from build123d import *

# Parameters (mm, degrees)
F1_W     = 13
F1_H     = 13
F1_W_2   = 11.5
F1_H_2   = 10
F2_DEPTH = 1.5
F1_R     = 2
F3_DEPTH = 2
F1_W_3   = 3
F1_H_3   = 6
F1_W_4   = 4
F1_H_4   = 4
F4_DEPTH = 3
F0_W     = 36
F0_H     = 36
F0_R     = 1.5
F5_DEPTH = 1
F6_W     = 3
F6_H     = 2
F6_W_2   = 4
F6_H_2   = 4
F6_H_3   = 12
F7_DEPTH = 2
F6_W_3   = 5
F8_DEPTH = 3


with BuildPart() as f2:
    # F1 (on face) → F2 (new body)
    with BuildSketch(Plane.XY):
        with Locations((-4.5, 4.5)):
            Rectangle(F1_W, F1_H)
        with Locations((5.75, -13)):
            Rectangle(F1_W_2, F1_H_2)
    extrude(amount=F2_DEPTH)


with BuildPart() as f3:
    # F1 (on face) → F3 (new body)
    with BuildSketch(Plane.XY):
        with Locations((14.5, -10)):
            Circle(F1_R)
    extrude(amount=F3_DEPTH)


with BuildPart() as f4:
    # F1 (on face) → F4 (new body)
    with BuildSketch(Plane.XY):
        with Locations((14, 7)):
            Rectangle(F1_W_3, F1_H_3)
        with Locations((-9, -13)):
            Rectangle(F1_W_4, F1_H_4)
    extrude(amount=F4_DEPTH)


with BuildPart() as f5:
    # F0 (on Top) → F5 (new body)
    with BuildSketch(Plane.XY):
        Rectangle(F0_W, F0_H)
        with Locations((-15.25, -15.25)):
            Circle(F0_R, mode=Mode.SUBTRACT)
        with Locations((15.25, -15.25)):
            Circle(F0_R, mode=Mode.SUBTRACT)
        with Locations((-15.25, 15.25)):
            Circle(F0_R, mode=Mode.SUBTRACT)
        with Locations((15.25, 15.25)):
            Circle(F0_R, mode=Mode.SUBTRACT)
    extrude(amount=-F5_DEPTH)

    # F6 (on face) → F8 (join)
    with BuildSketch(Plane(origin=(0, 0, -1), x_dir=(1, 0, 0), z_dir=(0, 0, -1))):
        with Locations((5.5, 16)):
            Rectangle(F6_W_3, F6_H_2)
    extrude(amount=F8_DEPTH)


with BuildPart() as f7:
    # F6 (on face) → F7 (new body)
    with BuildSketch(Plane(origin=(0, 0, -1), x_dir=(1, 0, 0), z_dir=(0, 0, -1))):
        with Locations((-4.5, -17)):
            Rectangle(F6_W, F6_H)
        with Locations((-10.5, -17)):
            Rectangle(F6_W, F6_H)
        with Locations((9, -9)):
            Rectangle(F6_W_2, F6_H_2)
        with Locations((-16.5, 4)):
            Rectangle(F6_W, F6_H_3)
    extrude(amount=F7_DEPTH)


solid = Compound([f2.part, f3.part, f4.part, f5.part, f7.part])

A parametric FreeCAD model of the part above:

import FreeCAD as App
import Part
import Sketcher

doc = App.newDocument("Part")
body = doc.addObject("PartDesign::Body", "Body")
body.AllowCompound = True

# Sketch on XY plane
sketch1 = doc.addObject("Sketcher::SketchObject", "Sketch")
body.addObject(sketch1)
sketch1.AttachmentSupport = (doc.XY_Plane, [""])
sketch1.MapMode = "FlatFace"
sketch1.addGeometry([
    Part.LineSegment(App.Vector(-11, 11, 0), App.Vector(-11, -2, 0)),  # 0
    Part.LineSegment(App.Vector(-11, -2, 0), App.Vector(2, -2, 0)),  # 1
    Part.LineSegment(App.Vector(2, -2, 0), App.Vector(2, 11, 0)),  # 2
    Part.LineSegment(App.Vector(2, 11, 0), App.Vector(-11, 11, 0)),  # 3
    Part.LineSegment(App.Vector(0, -8, 0), App.Vector(0, -18, 0)),  # 4
    Part.LineSegment(App.Vector(0, -18, 0), App.Vector(11.5, -18, 0)),  # 5
    Part.LineSegment(App.Vector(11.5, -18, 0), App.Vector(11.5, -8, 0)),  # 6
    Part.LineSegment(App.Vector(11.5, -8, 0), App.Vector(0, -8, 0)),  # 7
], False)
sketch1.addConstraint([
    Sketcher.Constraint("Coincident", 0, 2, 1, 1),
    Sketcher.Constraint("Coincident", 1, 2, 2, 1),
    Sketcher.Constraint("Coincident", 2, 2, 3, 1),
    Sketcher.Constraint("Coincident", 3, 2, 0, 1),
    Sketcher.Constraint("Coincident", 4, 2, 5, 1),
    Sketcher.Constraint("Coincident", 5, 2, 6, 1),
    Sketcher.Constraint("Coincident", 6, 2, 7, 1),
    Sketcher.Constraint("Coincident", 7, 2, 4, 1),
    Sketcher.Constraint("Vertical", 0),
    Sketcher.Constraint("Horizontal", 1),
    Sketcher.Constraint("Vertical", 2),
    Sketcher.Constraint("Horizontal", 3),
    Sketcher.Constraint("Vertical", 4),
    Sketcher.Constraint("Horizontal", 5),
    Sketcher.Constraint("Vertical", 6),
    Sketcher.Constraint("Horizontal", 7),
    Sketcher.Constraint("PointOnObject", 4, 2, -2),
    Sketcher.Constraint("Equal", 3, 0),
    Sketcher.Constraint("DistanceX", 1, 1, 1, 2, 13.0),
    Sketcher.Constraint("DistanceY", 4, 2, 4, 1, 10.0),
    Sketcher.Constraint("DistanceX", 5, 1, 5, 2, 11.5),
    Sketcher.Constraint("DistanceX", 0, 2, -1, 1, 11.0),
    Sketcher.Constraint("DistanceY", 0, 2, -1, 1, 2.0),
    Sketcher.Constraint("DistanceY", 4, 2, -1, 1, 18.0),
])
pad1 = doc.addObject("PartDesign::Pad", "Pad")
body.addObject(pad1)
pad1.Profile = sketch1
pad1.Length = 1.5
body2 = doc.addObject("PartDesign::Body", "Body001")

# Sketch on XY plane
sketch2 = doc.addObject("Sketcher::SketchObject", "Sketch001")
body2.addObject(sketch2)
sketch2.AttachmentSupport = (doc.getObject("XY_Plane001"), [""])
sketch2.MapMode = "FlatFace"
sketch2.addGeometry(Part.Circle(App.Vector(14.5, -10, 0), App.Vector(0, 0, 1), 2), False)
sketch2.addConstraint([
    Sketcher.Constraint("Diameter", 0, 4.0),
    Sketcher.Constraint("DistanceY", 0, 3, -1, 1, 10.0),
    Sketcher.Constraint("DistanceX", -1, 1, 0, 3, 14.5),
])
pad2 = doc.addObject("PartDesign::Pad", "Pad001")
body2.addObject(pad2)
pad2.Profile = sketch2
pad2.Length = 2
body3 = doc.addObject("PartDesign::Body", "Body002")
body3.AllowCompound = True

# Sketch on XY plane
sketch3 = doc.addObject("Sketcher::SketchObject", "Sketch002")
body3.addObject(sketch3)
sketch3.AttachmentSupport = (doc.getObject("XY_Plane002"), [""])
sketch3.MapMode = "FlatFace"
sketch3.addGeometry([
    Part.LineSegment(App.Vector(12.5, 10, 0), App.Vector(12.5, 4, 0)),  # 0
    Part.LineSegment(App.Vector(12.5, 4, 0), App.Vector(15.5, 4, 0)),  # 1
    Part.LineSegment(App.Vector(15.5, 4, 0), App.Vector(15.5, 10, 0)),  # 2
    Part.LineSegment(App.Vector(15.5, 10, 0), App.Vector(12.5, 10, 0)),  # 3
    Part.LineSegment(App.Vector(-11, -11, 0), App.Vector(-11, -15, 0)),  # 4
    Part.LineSegment(App.Vector(-11, -15, 0), App.Vector(-7, -15, 0)),  # 5
    Part.LineSegment(App.Vector(-7, -15, 0), App.Vector(-7, -11, 0)),  # 6
    Part.LineSegment(App.Vector(-7, -11, 0), App.Vector(-11, -11, 0)),  # 7
], False)
sketch3.addConstraint([
    Sketcher.Constraint("Coincident", 0, 2, 1, 1),
    Sketcher.Constraint("Coincident", 1, 2, 2, 1),
    Sketcher.Constraint("Coincident", 2, 2, 3, 1),
    Sketcher.Constraint("Coincident", 3, 2, 0, 1),
    Sketcher.Constraint("Coincident", 4, 2, 5, 1),
    Sketcher.Constraint("Coincident", 5, 2, 6, 1),
    Sketcher.Constraint("Coincident", 6, 2, 7, 1),
    Sketcher.Constraint("Coincident", 7, 2, 4, 1),
    Sketcher.Constraint("Vertical", 0),
    Sketcher.Constraint("Horizontal", 1),
    Sketcher.Constraint("Vertical", 2),
    Sketcher.Constraint("Horizontal", 3),
    Sketcher.Constraint("Vertical", 4),
    Sketcher.Constraint("Horizontal", 5),
    Sketcher.Constraint("Vertical", 6),
    Sketcher.Constraint("Horizontal", 7),
    Sketcher.Constraint("Equal", 7, 4),
    Sketcher.Constraint("DistanceX", 1, 1, 1, 2, 3.0),
    Sketcher.Constraint("DistanceX", 5, 1, 5, 2, 4.0),
    Sketcher.Constraint("DistanceY", 0, 2, 0, 1, 6.0),
    Sketcher.Constraint("DistanceY", -1, 1, 0, 2, 4.0),
    Sketcher.Constraint("DistanceX", 4, 2, -1, 1, 11.0),
    Sketcher.Constraint("DistanceY", 4, 2, -1, 1, 15.0),
    Sketcher.Constraint("DistanceX", -1, 1, 0, 2, 12.5),
])
pad3 = doc.addObject("PartDesign::Pad", "Pad002")
body3.addObject(pad3)
pad3.Profile = sketch3
pad3.Length = 3
body4 = doc.addObject("PartDesign::Body", "Body003")

# Sketch on XY plane
sketch4 = doc.addObject("Sketcher::SketchObject", "Sketch003")
body4.addObject(sketch4)
sketch4.AttachmentSupport = (doc.getObject("XY_Plane003"), [""])
sketch4.MapMode = "FlatFace"
sketch4.addGeometry([
    Part.LineSegment(App.Vector(-18, 18, 0), App.Vector(-18, -18, 0)),  # 0
    Part.LineSegment(App.Vector(-18, -18, 0), App.Vector(18, -18, 0)),  # 1
    Part.LineSegment(App.Vector(18, -18, 0), App.Vector(18, 18, 0)),  # 2
    Part.LineSegment(App.Vector(18, 18, 0), App.Vector(-18, 18, 0)),  # 3
    Part.Circle(App.Vector(-15.25, -15.25, 0), App.Vector(0, 0, 1), 1.5),  # 4
    Part.Circle(App.Vector(15.25, -15.25, 0), App.Vector(0, 0, 1), 1.5),  # 5
    Part.Circle(App.Vector(-15.25, 15.25, 0), App.Vector(0, 0, 1), 1.5),  # 6
    Part.Circle(App.Vector(15.25, 15.25, 0), App.Vector(0, 0, 1), 1.5),  # 7
], False)
sketch4.addConstraint([
    Sketcher.Constraint("Coincident", 0, 2, 1, 1),
    Sketcher.Constraint("Coincident", 1, 2, 2, 1),
    Sketcher.Constraint("Coincident", 2, 2, 3, 1),
    Sketcher.Constraint("Coincident", 3, 2, 0, 1),
    Sketcher.Constraint("Vertical", 0),
    Sketcher.Constraint("Horizontal", 1),
    Sketcher.Constraint("Vertical", 2),
    Sketcher.Constraint("Horizontal", 3),
    Sketcher.Constraint("Equal", 4, 5),
    Sketcher.Constraint("Equal", 5, 6),
    Sketcher.Constraint("Equal", 6, 7),
    Sketcher.Constraint("Symmetric", 5, 3, 6, 3, -1, 1),
    Sketcher.Constraint("Symmetric", 4, 3, 7, 3, -1, 1),
    Sketcher.Constraint("Symmetric", 0, 2, 2, 2, -1, 1),
    Sketcher.Constraint("Symmetric", 4, 3, 5, 3, -2),
    Sketcher.Constraint("Equal", 3, 0),
    Sketcher.Constraint("Diameter", 4, 3.0),
    Sketcher.Constraint("DistanceX", 1, 1, 1, 2, 36.0),
    Sketcher.Constraint("DistanceX", 4, 3, 5, 3, 30.5),
    Sketcher.Constraint("DistanceY", 4, 3, 6, 3, 30.5),
])
pad4 = doc.addObject("PartDesign::Pad", "Pad003")
body4.addObject(pad4)
pad4.Profile = sketch4
pad4.Length = 1
pad4.Reversed = True

# Sketch on XY plane
sketch5 = doc.addObject("Sketcher::SketchObject", "Sketch004")
body4.addObject(sketch5)
sketch5.AttachmentSupport = (doc.getObject("XY_Plane003"), [""])
sketch5.MapMode = "FlatFace"
sketch5.AttachmentOffset = App.Placement(App.Vector(0, 0, -1), App.Rotation())
sketch5.addGeometry([
    Part.LineSegment(App.Vector(3, -18, 0), App.Vector(3, -14, 0)),
    Part.LineSegment(App.Vector(3, -14, 0), App.Vector(8, -14, 0)),
    Part.LineSegment(App.Vector(8, -14, 0), App.Vector(8, -18, 0)),
    Part.LineSegment(App.Vector(8, -18, 0), App.Vector(3, -18, 0)),
], False)
sketch5.addConstraint([
    Sketcher.Constraint("Coincident", 0, 2, 1, 1),
    Sketcher.Constraint("Coincident", 1, 2, 2, 1),
    Sketcher.Constraint("Coincident", 2, 2, 3, 1),
    Sketcher.Constraint("Coincident", 3, 2, 0, 1),
    Sketcher.Constraint("Vertical", 0),
    Sketcher.Constraint("Horizontal", 1),
    Sketcher.Constraint("Vertical", 2),
    Sketcher.Constraint("Horizontal", 3),
    Sketcher.Constraint("DistanceX", 1, 1, 1, 2, 5.0),
    Sketcher.Constraint("DistanceY", 0, 1, 0, 2, 4.0),
    Sketcher.Constraint("DistanceX", -1, 1, 0, 2, 3.0),
    Sketcher.Constraint("DistanceY", 0, 2, -1, 1, 14.0),
])
pad5 = doc.addObject("PartDesign::Pad", "Pad004")
body4.addObject(pad5)
pad5.Profile = sketch5
pad5.Length = 3
pad5.Reversed = True
body5 = doc.addObject("PartDesign::Body", "Body004")
body5.AllowCompound = True

# Sketch on XY plane
sketch6 = doc.addObject("Sketcher::SketchObject", "Sketch005")
body5.addObject(sketch6)
sketch6.AttachmentSupport = (doc.getObject("XY_Plane004"), [""])
sketch6.MapMode = "FlatFace"
sketch6.AttachmentOffset = App.Placement(App.Vector(0, 0, -1), App.Rotation())
sketch6.addGeometry([
    Part.LineSegment(App.Vector(-6, 16, 0), App.Vector(-6, 18, 0)),  # 0
    Part.LineSegment(App.Vector(-6, 18, 0), App.Vector(-3, 18, 0)),  # 1
    Part.LineSegment(App.Vector(-3, 18, 0), App.Vector(-3, 16, 0)),  # 2
    Part.LineSegment(App.Vector(-3, 16, 0), App.Vector(-6, 16, 0)),  # 3
    Part.LineSegment(App.Vector(-12, 16, 0), App.Vector(-12, 18, 0)),  # 4
    Part.LineSegment(App.Vector(-12, 18, 0), App.Vector(-9, 18, 0)),  # 5
    Part.LineSegment(App.Vector(-9, 18, 0), App.Vector(-9, 16, 0)),  # 6
    Part.LineSegment(App.Vector(-9, 16, 0), App.Vector(-12, 16, 0)),  # 7
    Part.LineSegment(App.Vector(7, 7, 0), App.Vector(7, 11, 0)),  # 8
    Part.LineSegment(App.Vector(7, 11, 0), App.Vector(11, 11, 0)),  # 9
    Part.LineSegment(App.Vector(11, 11, 0), App.Vector(11, 7, 0)),  # 10
    Part.LineSegment(App.Vector(11, 7, 0), App.Vector(7, 7, 0)),  # 11
    Part.LineSegment(App.Vector(-18, -10, 0), App.Vector(-18, 2, 0)),  # 12
    Part.LineSegment(App.Vector(-18, 2, 0), App.Vector(-15, 2, 0)),  # 13
    Part.LineSegment(App.Vector(-15, 2, 0), App.Vector(-15, -10, 0)),  # 14
    Part.LineSegment(App.Vector(-15, -10, 0), App.Vector(-18, -10, 0)),  # 15
], False)
sketch6.addConstraint([
    Sketcher.Constraint("Coincident", 0, 2, 1, 1),
    Sketcher.Constraint("Coincident", 1, 2, 2, 1),
    Sketcher.Constraint("Coincident", 2, 2, 3, 1),
    Sketcher.Constraint("Coincident", 3, 2, 0, 1),
    Sketcher.Constraint("Coincident", 4, 2, 5, 1),
    Sketcher.Constraint("Coincident", 5, 2, 6, 1),
    Sketcher.Constraint("Coincident", 6, 2, 7, 1),
    Sketcher.Constraint("Coincident", 7, 2, 4, 1),
    Sketcher.Constraint("Coincident", 8, 2, 9, 1),
    Sketcher.Constraint("Coincident", 9, 2, 10, 1),
    Sketcher.Constraint("Coincident", 10, 2, 11, 1),
    Sketcher.Constraint("Coincident", 11, 2, 8, 1),
    Sketcher.Constraint("Coincident", 12, 2, 13, 1),
    Sketcher.Constraint("Coincident", 13, 2, 14, 1),
    Sketcher.Constraint("Coincident", 14, 2, 15, 1),
    Sketcher.Constraint("Coincident", 15, 2, 12, 1),
    Sketcher.Constraint("Vertical", 0),
    Sketcher.Constraint("Horizontal", 1),
    Sketcher.Constraint("Vertical", 2),
    Sketcher.Constraint("Horizontal", 3),
    Sketcher.Constraint("Vertical", 4),
    Sketcher.Constraint("Horizontal", 5),
    Sketcher.Constraint("Vertical", 6),
    Sketcher.Constraint("Horizontal", 7),
    Sketcher.Constraint("Vertical", 8),
    Sketcher.Constraint("Horizontal", 9),
    Sketcher.Constraint("Vertical", 10),
    Sketcher.Constraint("Horizontal", 11),
    Sketcher.Constraint("Vertical", 12),
    Sketcher.Constraint("Horizontal", 13),
    Sketcher.Constraint("Vertical", 14),
    Sketcher.Constraint("Horizontal", 15),
    Sketcher.Constraint("Horizontal", 1, 2, 4, 2),
    Sketcher.Constraint("Horizontal", 3, 2, 6, 2),
    Sketcher.Constraint("Equal", 3, 5),
    Sketcher.Constraint("Equal", 7, 13),
    Sketcher.Constraint("Equal", 11, 8),
    Sketcher.Constraint("DistanceX", 1, 1, 1, 2, 3.0),
    Sketcher.Constraint("DistanceX", 9, 1, 9, 2, 4.0),
    Sketcher.Constraint("DistanceY", 0, 1, 0, 2, 2.0),
    Sketcher.Constraint("DistanceY", 12, 1, 12, 2, 12.0),
    Sketcher.Constraint("DistanceX", 0, 2, -1, 1, 6.0),
    Sketcher.Constraint("DistanceY", -1, 1, 0, 2, 18.0),
    Sketcher.Constraint("DistanceX", 4, 2, -1, 1, 12.0),
    Sketcher.Constraint("DistanceX", -1, 1, 8, 2, 7.0),
    Sketcher.Constraint("DistanceY", -1, 1, 8, 2, 11.0),
    Sketcher.Constraint("DistanceX", 12, 2, -1, 1, 18.0),
    Sketcher.Constraint("DistanceY", -1, 1, 12, 2, 2.0),
])
pad6 = doc.addObject("PartDesign::Pad", "Pad005")
body5.addObject(pad6)
pad6.Profile = sketch6
pad6.Length = 2
pad6.Reversed = True

doc.recompute()
